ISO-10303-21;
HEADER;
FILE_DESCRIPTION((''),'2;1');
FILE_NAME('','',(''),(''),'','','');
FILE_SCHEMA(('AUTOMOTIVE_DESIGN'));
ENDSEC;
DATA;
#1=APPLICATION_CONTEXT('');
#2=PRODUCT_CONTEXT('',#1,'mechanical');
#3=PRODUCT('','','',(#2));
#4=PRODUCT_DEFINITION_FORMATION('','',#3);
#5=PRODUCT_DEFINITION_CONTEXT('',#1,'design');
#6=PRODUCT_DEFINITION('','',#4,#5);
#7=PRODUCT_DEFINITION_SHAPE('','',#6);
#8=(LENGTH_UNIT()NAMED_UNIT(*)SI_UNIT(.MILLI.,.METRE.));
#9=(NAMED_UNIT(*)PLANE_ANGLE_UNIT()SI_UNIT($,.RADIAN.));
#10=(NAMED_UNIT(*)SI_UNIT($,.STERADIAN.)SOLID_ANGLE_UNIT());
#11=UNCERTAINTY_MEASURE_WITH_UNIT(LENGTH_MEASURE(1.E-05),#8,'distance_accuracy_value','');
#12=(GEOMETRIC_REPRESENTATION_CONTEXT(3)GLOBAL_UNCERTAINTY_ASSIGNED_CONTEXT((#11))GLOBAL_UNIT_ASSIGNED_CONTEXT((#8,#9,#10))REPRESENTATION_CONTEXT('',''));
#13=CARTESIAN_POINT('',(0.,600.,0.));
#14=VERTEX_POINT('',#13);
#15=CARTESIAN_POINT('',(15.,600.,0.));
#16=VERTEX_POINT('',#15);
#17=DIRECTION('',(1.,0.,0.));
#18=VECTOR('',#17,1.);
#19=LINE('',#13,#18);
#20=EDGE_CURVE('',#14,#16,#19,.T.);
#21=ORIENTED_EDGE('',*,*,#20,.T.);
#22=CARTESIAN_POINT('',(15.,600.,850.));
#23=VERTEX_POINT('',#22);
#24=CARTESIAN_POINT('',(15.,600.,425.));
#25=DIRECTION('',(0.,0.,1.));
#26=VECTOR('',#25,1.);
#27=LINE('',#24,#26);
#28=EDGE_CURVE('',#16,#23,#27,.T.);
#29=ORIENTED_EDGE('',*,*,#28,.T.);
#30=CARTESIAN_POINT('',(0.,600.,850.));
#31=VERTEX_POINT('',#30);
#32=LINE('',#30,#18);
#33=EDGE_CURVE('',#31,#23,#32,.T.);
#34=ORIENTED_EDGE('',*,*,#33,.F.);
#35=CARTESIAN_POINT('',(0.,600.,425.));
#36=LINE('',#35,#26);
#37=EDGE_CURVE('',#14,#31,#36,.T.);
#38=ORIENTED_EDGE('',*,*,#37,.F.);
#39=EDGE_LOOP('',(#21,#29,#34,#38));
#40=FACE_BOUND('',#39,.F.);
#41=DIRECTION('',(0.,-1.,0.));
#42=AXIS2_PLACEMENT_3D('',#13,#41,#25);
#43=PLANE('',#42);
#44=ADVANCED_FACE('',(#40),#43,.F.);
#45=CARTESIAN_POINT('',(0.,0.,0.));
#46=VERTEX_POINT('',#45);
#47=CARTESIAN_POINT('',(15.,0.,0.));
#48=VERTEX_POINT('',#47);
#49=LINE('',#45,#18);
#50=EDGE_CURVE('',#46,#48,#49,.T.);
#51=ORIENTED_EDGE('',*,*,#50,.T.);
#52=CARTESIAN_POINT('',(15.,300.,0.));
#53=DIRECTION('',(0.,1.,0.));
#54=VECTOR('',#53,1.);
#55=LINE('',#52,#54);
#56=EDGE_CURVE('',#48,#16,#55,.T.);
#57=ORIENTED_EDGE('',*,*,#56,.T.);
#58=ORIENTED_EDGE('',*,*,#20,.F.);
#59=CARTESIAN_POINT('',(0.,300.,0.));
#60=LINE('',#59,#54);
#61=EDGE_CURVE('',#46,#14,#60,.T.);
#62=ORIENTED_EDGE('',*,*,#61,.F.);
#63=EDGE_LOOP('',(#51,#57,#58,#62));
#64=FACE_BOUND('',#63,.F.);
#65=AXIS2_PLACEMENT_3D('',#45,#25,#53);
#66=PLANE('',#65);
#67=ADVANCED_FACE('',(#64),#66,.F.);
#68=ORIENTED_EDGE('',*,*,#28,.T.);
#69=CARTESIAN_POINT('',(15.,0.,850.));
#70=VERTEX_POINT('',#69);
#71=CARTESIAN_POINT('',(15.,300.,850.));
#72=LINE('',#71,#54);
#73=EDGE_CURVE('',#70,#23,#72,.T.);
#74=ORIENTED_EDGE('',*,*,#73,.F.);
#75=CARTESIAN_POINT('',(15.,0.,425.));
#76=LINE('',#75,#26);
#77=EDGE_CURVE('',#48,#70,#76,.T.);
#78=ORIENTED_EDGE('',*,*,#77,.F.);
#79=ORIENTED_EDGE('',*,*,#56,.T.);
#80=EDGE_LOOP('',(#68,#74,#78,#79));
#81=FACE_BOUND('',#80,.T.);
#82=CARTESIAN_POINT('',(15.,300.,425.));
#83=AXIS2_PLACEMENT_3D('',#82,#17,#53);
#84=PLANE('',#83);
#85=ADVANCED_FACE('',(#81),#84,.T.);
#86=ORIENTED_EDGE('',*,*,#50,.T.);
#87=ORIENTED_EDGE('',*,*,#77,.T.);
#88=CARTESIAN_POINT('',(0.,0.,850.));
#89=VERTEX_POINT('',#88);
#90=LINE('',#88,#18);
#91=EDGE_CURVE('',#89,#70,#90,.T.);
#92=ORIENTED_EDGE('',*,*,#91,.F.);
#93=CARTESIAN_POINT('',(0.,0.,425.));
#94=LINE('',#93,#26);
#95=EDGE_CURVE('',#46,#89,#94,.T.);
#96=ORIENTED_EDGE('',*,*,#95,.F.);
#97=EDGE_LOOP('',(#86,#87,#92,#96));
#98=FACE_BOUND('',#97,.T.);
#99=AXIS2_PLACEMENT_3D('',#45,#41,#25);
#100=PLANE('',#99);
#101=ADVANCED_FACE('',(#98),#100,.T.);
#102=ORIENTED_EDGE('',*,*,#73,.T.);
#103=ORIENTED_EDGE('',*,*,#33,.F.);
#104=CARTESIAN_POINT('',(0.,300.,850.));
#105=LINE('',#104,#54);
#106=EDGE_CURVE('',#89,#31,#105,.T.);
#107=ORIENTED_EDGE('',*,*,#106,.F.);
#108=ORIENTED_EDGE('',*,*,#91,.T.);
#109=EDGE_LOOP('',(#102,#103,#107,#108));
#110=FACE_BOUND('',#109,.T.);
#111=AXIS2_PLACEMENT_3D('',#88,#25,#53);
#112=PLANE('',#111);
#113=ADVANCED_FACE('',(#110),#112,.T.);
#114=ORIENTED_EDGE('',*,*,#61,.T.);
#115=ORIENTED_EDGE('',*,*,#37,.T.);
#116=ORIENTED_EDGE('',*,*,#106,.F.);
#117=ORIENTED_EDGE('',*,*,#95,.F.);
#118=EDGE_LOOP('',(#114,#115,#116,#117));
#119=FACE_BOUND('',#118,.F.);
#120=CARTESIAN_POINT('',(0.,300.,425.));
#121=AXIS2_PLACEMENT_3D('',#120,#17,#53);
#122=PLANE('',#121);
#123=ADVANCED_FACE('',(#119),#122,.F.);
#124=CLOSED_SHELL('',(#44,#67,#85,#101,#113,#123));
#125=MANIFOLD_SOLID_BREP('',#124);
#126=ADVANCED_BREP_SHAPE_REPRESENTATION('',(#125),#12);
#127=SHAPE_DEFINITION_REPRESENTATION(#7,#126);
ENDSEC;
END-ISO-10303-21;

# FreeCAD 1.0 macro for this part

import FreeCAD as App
import Part
import Sketcher

V = App.Vector


def add_polygon(sketch, points):
    """Adds a closed chain of lines whose ends are joined by coincident constraints."""
    first, n = sketch.GeometryCount, len(points)
    for a, b in zip(points, points[1:] + points[:1]):
        sketch.addGeometry(Part.LineSegment(App.Vector(*a, 0), App.Vector(*b, 0)), False)
    for i in range(n):
        sketch.addConstraint(Sketcher.Constraint("Coincident", first + i, 2, first + (i + 1) % n, 1))

doc = App.newDocument("Part")
body = doc.addObject("PartDesign::Body", "Body")

# Sketch on YZ plane
sketch1 = body.newObject("Sketcher::SketchObject", "Sketch")
sketch1.AttachmentSupport = (doc.getObject("YZ_Plane"), [""])
sketch1.MapMode = "FlatFace"
add_polygon(sketch1, [(0, 850), (0, 0), (600, 0), (600, 850)])  # lines 0-3
sketch1.addConstraint([
    Sketcher.Constraint("Vertical", 0),
    Sketcher.Constraint("Horizontal", 1),
    Sketcher.Constraint("Vertical", 2),
    Sketcher.Constraint("Horizontal", 3),
    Sketcher.Constraint("Coincident", 0, 2, -1, 1),
    Sketcher.Constraint("DistanceX", 1, 1, 1, 2, 600.0),
    Sketcher.Constraint("DistanceY", 0, 2, 0, 1, 850.0),
])
pad1 = body.newObject("PartDesign::Pad", "Pad")
pad1.Profile = sketch1
pad1.Length = 15

doc.recompute()
